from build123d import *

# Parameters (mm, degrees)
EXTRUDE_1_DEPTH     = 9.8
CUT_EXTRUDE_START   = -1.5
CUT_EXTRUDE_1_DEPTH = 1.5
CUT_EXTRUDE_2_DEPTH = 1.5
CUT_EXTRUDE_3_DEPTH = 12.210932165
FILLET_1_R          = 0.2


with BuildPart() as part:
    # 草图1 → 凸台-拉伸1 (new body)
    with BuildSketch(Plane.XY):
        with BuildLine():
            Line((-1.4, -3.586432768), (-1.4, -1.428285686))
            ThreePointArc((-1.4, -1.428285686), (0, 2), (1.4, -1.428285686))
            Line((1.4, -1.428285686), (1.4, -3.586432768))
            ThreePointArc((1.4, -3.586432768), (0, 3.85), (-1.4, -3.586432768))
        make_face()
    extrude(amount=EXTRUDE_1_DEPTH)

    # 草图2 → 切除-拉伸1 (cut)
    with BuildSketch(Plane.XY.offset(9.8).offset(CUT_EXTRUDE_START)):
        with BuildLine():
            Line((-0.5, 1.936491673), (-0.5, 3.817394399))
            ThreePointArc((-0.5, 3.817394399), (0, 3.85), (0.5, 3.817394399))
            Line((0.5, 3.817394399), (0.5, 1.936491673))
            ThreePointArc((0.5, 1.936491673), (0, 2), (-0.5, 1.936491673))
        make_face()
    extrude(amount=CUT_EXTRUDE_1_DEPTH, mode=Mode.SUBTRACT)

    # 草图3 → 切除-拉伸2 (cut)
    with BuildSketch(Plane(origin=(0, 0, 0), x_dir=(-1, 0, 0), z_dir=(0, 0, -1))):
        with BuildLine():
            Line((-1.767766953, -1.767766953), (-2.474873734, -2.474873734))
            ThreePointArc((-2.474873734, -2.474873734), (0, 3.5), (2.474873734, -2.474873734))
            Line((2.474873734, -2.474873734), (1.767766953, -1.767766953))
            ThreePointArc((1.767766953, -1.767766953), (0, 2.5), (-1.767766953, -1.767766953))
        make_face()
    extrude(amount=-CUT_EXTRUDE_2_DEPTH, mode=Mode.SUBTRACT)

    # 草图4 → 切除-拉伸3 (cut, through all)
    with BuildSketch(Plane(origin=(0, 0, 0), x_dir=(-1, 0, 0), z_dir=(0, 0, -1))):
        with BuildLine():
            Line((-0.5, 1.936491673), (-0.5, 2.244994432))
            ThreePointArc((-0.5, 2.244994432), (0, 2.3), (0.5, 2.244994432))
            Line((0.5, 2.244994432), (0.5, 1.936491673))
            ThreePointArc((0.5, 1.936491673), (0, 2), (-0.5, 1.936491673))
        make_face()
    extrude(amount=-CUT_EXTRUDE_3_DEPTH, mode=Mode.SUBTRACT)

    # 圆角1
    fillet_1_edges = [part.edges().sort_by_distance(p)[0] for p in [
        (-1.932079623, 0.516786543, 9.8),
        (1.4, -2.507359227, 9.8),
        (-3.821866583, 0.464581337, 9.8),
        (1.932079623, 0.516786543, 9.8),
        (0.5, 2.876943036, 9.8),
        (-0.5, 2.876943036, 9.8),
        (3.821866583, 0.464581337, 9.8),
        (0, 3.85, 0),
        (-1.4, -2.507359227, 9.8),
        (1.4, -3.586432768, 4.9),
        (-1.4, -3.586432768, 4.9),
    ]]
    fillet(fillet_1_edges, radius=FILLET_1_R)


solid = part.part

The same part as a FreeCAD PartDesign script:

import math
import FreeCAD as App
import Part
import Sketcher
from FreeCAD import Vector
Q = App.Units.Quantity


def edges_at(feature, points):
    """Names of the edges that pass closest to the given points."""
    edges = feature.Shape.Edges
    near = lambda p: min(range(len(edges)), key=lambda i: edges[i].distToShape(Part.Vertex(*p))[0])
    return sorted({f"Edge{near(p) + 1}" for p in points})

doc = App.newDocument("Part")
body = doc.addObject("PartDesign::Body", "Body")

# Sketch on XY plane
sketch1 = doc.addObject("Sketcher::SketchObject", "Sketch")
body.addObject(sketch1)
sketch1.AttachmentSupport = (doc.XY_Plane, [""])
sketch1.MapMode = "FlatFace"
sketch1.addGeometry(Part.LineSegment(Vector(-1.4, -3.586433, 0), Vector(-1.4, -1.428286, 0)), False)
sketch1.addGeometry(Part.ArcOfCircle(Part.Circle(Vector(0, 0, 0), Vector(0, 0, 1), 2), math.radians(-45.572996), math.radians(225.572996)), False)
sketch1.addGeometry(Part.LineSegment(Vector(1.4, -1.428286, 0), Vector(1.4, -3.586433, 0)), False)
sketch1.addGeometry(Part.ArcOfCircle(Part.Circle(Vector(0, 0, 0), Vector(0, 0, 1), 3.85), math.radians(-68.676314), math.radians(248.676314)), False)
sketch1.addConstraint(Sketcher.Constraint("Coincident", 0, 2, 1, 2))
sketch1.addConstraint(Sketcher.Constraint("Coincident", 1, 1, 2, 1))
sketch1.addConstraint(Sketcher.Constraint("Coincident", 2, 2, 3, 1))
sketch1.addConstraint(Sketcher.Constraint("Coincident", 3, 2, 0, 1))
sketch1.addConstraint(Sketcher.Constraint("Vertical", 0))
sketch1.addConstraint(Sketcher.Constraint("Vertical", 2))
sketch1.addConstraint(Sketcher.Constraint("Coincident", 1, 3, -1, 1))
sketch1.addConstraint(Sketcher.Constraint("Coincident", 3, 3, -1, 1))
sketch1.addConstraint(Sketcher.Constraint("Horizontal", 0, 2, 1, 1))
sketch1.addConstraint(Sketcher.Constraint("Radius", 1, Q("2 mm")))
sketch1.addConstraint(Sketcher.Constraint("Radius", 3, Q("3.85 mm")))
sketch1.addConstraint(Sketcher.Constraint("DistanceX", 0, 2, -1, 1, Q("1.4 mm")))
pad1 = doc.addObject("PartDesign::Pad", "Pad")
body.addObject(pad1)
pad1.Profile = sketch1
pad1.Length = 9.8

# Sketch on XY plane
sketch2 = doc.addObject("Sketcher::SketchObject", "Sketch001")
body.addObject(sketch2)
sketch2.AttachmentSupport = (doc.XY_Plane, [""])
sketch2.MapMode = "FlatFace"
sketch2.AttachmentOffset = App.Placement(Vector(0, 0, 8.3), App.Rotation())
sketch2.addGeometry(Part.LineSegment(Vector(-0.5, 3.817394, 0), Vector(-0.5, 1.936492, 0)), False)
sketch2.addGeometry(Part.ArcOfCircle(Part.Circle(Vector(0, 0, 0), Vector(0, 0, 1), 2), math.radians(75.522488), math.radians(104.477512)), False)
sketch2.addGeometry(Part.LineSegment(Vector(0.5, 1.936492, 0), Vector(0.5, 3.817394, 0)), False)
sketch2.addGeometry(Part.ArcOfCircle(Part.Circle(Vector(0, 0, 0), Vector(0, 0, 1), 3.85), math.radians(82.537912), math.radians(97.462088)), False)
sketch2.addConstraint(Sketcher.Constraint("Coincident", 0, 2, 1, 2))
sketch2.addConstraint(Sketcher.Constraint("Coincident", 1, 1, 2, 1))
sketch2.addConstraint(Sketcher.Constraint("Coincident", 2, 2, 3, 1))
sketch2.addConstraint(Sketcher.Constraint("Coincident", 3, 2, 0, 1))
sketch2.addConstraint(Sketcher.Constraint("Vertical", 0))
sketch2.addConstraint(Sketcher.Constraint("Vertical", 2))
sketch2.addConstraint(Sketcher.Constraint("Coincident", 1, 3, -1, 1))
sketch2.addConstraint(Sketcher.Constraint("Coincident", 3, 3, -1, 1))
sketch2.addConstraint(Sketcher.Constraint("Horizontal", 0, 2, 1, 1))
sketch2.addConstraint(Sketcher.Constraint("Radius", 1, Q("2 mm")))
sketch2.addConstraint(Sketcher.Constraint("Radius", 3, Q("3.85 mm")))
sketch2.addConstraint(Sketcher.Constraint("DistanceX", 0, 2, 1, 1, Q("1 mm")))
pocket1 = doc.addObject("PartDesign::Pocket", "Pocket")
body.addObject(pocket1)
pocket1.Profile = sketch2
pocket1.Length = 1.5
pocket1.Reversed = True

# Sketch on XY plane
sketch3 = doc.addObject("Sketcher::SketchObject", "Sketch002")
body.addObject(sketch3)
sketch3.AttachmentSupport = (doc.XY_Plane, [""])
sketch3.MapMode = "FlatFace"
sketch3.addGeometry(Part.LineSegment(Vector(2.474874, -2.474874, 0), Vector(1.767767, -1.767767, 0)), False)
sketch3.addGeometry(Part.ArcOfCircle(Part.Circle(Vector(0, 0, 0), Vector(0, 0, 1), 2.5), math.radians(-45), math.radians(225)), False)
sketch3.addGeometry(Part.LineSegment(Vector(-1.767767, -1.767767, 0), Vector(-2.474874, -2.474874, 0)), False)
sketch3.addGeometry(Part.ArcOfCircle(Part.Circle(Vector(0, 0, 0), Vector(0, 0, 1), 3.5), math.radians(-45), math.radians(225)), False)
sketch3.addConstraint(Sketcher.Constraint("Coincident", 0, 2, 1, 1))
sketch3.addConstraint(Sketcher.Constraint("Coincident", 1, 2, 2, 1))
sketch3.addConstraint(Sketcher.Constraint("Coincident", 2, 2, 3, 2))
sketch3.addConstraint(Sketcher.Constraint("Coincident", 3, 1, 0, 1))
sketch3.addConstraint(Sketcher.Constraint("Coincident", 1, 3, -1, 1))
sketch3.addConstraint(Sketcher.Constraint("Coincident", 3, 3, -1, 1))
sketch3.addConstraint(Sketcher.Constraint("Perpendicular", 0, 2))
sketch3.addConstraint(Sketcher.Constraint("Horizontal", 0, 2, 1, 2))
sketch3.addConstraint(Sketcher.Constraint("Horizontal", 2, 2, 3, 1))
sketch3.addConstraint(Sketcher.Constraint("Radius", 1, Q("2.5 mm")))
sketch3.addConstraint(Sketcher.Constraint("Radius", 3, Q("3.5 mm")))
sketch3.addConstraint(Sketcher.Constraint("DistanceX", 2, 2, 0, 2, Q("4.242641 mm")))
pocket2 = doc.addObject("PartDesign::Pocket", "Pocket001")
body.addObject(pocket2)
pocket2.Profile = sketch3
pocket2.Length = 1.5
pocket2.Reversed = True

# Sketch on XY plane
sketch4 = doc.addObject("Sketcher::SketchObject", "Sketch003")
body.addObject(sketch4)
sketch4.AttachmentSupport = (doc.XY_Plane, [""])
sketch4.MapMode = "FlatFace"
sketch4.addGeometry(Part.LineSegment(Vector(0.5, 2.244994, 0), Vector(0.5, 1.936492, 0)), False)
sketch4.addGeometry(Part.ArcOfCircle(Part.Circle(Vector(0, 0, 0), Vector(0, 0, 1), 2), math.radians(75.522488), math.radians(104.477512)), False)
sketch4.addGeometry(Part.LineSegment(Vector(-0.5, 1.936492, 0), Vector(-0.5, 2.244994, 0)), False)
sketch4.addGeometry(Part.ArcOfCircle(Part.Circle(Vector(0, 0, 0), Vector(0, 0, 1), 2.3), math.radians(77.444142), math.radians(102.555858)), False)
sketch4.addConstraint(Sketcher.Constraint("Coincident", 0, 2, 1, 1))
sketch4.addConstraint(Sketcher.Constraint("Coincident", 1, 2, 2, 1))
sketch4.addConstraint(Sketcher.Constraint("Coincident", 2, 2, 3, 2))
sketch4.addConstraint(Sketcher.Constraint("Coincident", 3, 1, 0, 1))
sketch4.addConstraint(Sketcher.Constraint("Vertical", 0))
sketch4.addConstraint(Sketcher.Constraint("Vertical", 2))
sketch4.addConstraint(Sketcher.Constraint("Coincident", 1, 3, -1, 1))
sketch4.addConstraint(Sketcher.Constraint("Coincident", 3, 3, -1, 1))
sketch4.addConstraint(Sketcher.Constraint("Horizontal", 0, 2, 1, 2))
sketch4.addConstraint(Sketcher.Constraint("Radius", 1, Q("2 mm")))
sketch4.addConstraint(Sketcher.Constraint("Radius", 3, Q("2.3 mm")))
sketch4.addConstraint(Sketcher.Constraint("DistanceX", 1, 2, 0, 2, Q("1 mm")))
pocket3 = doc.addObject("PartDesign::Pocket", "Pocket002")
body.addObject(pocket3)
pocket3.Profile = sketch4
pocket3.Type = "ThroughAll"
pocket3.Reversed = True
doc.recompute()

fillet = doc.addObject("PartDesign::Fillet", "Fillet")
body.addObject(fillet)
fillet.Base = (pocket3, edges_at(pocket3, [
    (-1.932, 0.517, 9.8),
    (1.4, -2.507, 9.8),
    (-3.822, 0.465, 9.8),
    (1.932, 0.517, 9.8),
    (0.5, 2.877, 9.8),
    (-0.5, 2.877, 9.8),
    (3.822, 0.465, 9.8),
    (0, 3.85, 0),
    (-1.4, -2.507, 9.8),
    (1.4, -3.586, 4.9),
    (-1.4, -3.586, 4.9),
]))
fillet.Radius = 0.2

doc.recompute()
